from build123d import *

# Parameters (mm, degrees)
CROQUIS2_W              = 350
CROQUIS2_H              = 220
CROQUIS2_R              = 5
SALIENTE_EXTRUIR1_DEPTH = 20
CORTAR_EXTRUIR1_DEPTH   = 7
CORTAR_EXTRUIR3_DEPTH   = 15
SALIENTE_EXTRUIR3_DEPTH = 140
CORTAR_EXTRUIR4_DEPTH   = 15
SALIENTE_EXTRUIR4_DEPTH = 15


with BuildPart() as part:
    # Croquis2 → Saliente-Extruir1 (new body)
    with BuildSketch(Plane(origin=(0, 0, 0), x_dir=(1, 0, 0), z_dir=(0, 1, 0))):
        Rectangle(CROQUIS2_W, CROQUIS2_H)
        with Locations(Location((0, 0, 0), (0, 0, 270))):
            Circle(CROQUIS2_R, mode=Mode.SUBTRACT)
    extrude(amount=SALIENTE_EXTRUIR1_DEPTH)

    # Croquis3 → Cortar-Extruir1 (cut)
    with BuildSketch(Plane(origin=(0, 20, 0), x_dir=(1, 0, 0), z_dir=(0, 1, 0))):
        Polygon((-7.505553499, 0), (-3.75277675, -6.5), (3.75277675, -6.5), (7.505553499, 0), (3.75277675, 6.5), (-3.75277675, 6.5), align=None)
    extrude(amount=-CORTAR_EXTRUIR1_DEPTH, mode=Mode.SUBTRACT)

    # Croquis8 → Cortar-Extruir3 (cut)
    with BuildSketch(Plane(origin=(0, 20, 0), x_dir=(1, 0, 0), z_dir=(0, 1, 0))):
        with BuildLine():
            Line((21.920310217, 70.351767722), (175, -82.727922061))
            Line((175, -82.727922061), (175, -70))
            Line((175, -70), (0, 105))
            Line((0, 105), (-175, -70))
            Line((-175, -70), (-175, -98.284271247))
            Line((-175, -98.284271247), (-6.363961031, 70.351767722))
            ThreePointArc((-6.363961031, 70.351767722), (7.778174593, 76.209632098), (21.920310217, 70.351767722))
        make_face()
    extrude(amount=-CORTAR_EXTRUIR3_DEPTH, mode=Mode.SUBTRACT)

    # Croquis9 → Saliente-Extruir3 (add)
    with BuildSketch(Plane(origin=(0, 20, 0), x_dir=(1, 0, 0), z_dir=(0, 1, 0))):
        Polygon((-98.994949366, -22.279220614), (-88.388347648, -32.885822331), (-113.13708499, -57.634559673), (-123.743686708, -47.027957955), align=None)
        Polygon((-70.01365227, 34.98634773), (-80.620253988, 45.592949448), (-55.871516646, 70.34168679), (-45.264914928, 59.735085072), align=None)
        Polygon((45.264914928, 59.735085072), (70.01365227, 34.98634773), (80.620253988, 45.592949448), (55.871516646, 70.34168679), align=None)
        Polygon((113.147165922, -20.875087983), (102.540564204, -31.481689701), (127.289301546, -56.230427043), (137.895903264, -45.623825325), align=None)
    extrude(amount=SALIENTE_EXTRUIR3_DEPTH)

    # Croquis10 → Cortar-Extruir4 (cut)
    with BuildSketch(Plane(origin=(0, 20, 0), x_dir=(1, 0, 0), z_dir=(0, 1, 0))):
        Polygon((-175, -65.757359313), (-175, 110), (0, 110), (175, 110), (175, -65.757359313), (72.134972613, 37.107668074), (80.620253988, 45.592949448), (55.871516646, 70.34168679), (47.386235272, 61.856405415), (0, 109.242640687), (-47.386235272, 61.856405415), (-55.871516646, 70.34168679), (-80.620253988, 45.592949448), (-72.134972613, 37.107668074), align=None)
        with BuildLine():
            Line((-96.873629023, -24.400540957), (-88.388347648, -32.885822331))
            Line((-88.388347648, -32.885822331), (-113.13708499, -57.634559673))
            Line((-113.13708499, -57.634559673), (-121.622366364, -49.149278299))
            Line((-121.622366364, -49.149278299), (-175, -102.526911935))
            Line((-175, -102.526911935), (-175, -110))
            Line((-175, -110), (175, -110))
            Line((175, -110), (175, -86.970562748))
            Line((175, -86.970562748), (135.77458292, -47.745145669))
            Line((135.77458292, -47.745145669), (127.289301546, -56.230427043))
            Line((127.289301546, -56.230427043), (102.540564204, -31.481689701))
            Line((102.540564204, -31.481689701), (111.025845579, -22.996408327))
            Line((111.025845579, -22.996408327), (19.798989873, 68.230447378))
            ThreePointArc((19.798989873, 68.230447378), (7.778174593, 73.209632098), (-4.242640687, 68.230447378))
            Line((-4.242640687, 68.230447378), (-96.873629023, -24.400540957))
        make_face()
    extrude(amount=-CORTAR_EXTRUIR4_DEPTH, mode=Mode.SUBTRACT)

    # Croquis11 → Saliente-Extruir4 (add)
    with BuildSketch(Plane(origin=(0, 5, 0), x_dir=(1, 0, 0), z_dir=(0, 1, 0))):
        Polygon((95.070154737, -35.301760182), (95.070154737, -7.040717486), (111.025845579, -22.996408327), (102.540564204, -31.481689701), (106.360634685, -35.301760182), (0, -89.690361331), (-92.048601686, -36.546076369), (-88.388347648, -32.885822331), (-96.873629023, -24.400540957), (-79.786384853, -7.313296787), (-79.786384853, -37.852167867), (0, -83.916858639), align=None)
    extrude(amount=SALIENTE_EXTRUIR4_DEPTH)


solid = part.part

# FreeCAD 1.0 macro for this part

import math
import FreeCAD as App
import Part
import Sketcher

V = App.Vector
Q = App.Units.Quantity


def add_polygon(sketch, points):
    """Adds a closed chain of lines whose ends are joined by coincident constraints."""
    first, n = sketch.GeometryCount, len(points)
    for a, b in zip(points, points[1:] + points[:1]):
        sketch.addGeometry(Part.LineSegment(App.Vector(*a, 0), App.Vector(*b, 0)), False)
    for i in range(n):
        sketch.addConstraint(Sketcher.Constraint("Coincident", first + i, 2, first + (i + 1) % n, 1))

doc = App.newDocument("Part")
body = doc.addObject("PartDesign::Body", "Body")

# Sketch on XZ plane
sketch1 = body.newObject("Sketcher::SketchObject", "Sketch")
sketch1.AttachmentSupport = (doc.getObject("XZ_Plane"), [""])
sketch1.MapMode = "FlatFace"
add_polygon(sketch1, [(-175, -110), (-175, 110), (175, 110), (175, -110)])  # lines 0-3
sketch1.addGeometry(Part.Circle(V(0, 0, 0), V(0, 0, 1), 5), False)  # 4
sketch1.addConstraint([
    Sketcher.Constraint("Vertical", 0),
    Sketcher.Constraint("Horizontal", 1),
    Sketcher.Constraint("Vertical", 2),
    Sketcher.Constraint("Horizontal", 3),
    Sketcher.Constraint("Coincident", 4, 3, -1, 1),
    Sketcher.Constraint("Symmetric", 0, 2, 2, 2, -1, 1),
    Sketcher.Constraint("Diameter", 4, 10.0),
    Sketcher.Constraint("DistanceX", 1, 1, 1, 2, 350.0),
    Sketcher.Constraint("DistanceY", 0, 1, 0, 2, 220.0),
])
pad1 = body.newObject("PartDesign::Pad", "Pad")
pad1.Profile = sketch1
pad1.Length = 20
pad1.Reversed = True

# Sketch on XZ plane
sketch2 = body.newObject("Sketcher::SketchObject", "Sketch001")
sketch2.AttachmentSupport = (doc.getObject("XZ_Plane"), [""])
sketch2.MapMode = "FlatFace"
sketch2.AttachmentOffset = App.Placement(V(0, 0, -20), App.Rotation())
add_polygon(sketch2, [(-7.505553, 0), (-3.752777, 6.5), (3.752777, 6.5), (7.505553, 0), (3.752777, -6.5), (-3.752777, -6.5)])  # lines 0-5
sketch2.addConstraint([
    Sketcher.Constraint("Horizontal", 1),
    Sketcher.Constraint("Horizontal", 4),
    Sketcher.Constraint("Symmetric", 0, 2, 3, 2, -1, 1),
    Sketcher.Constraint("Symmetric", 2, 2, 5, 2, -1, 1),
    Sketcher.Constraint("PointOnObject", 2, 2, -1),
    Sketcher.Constraint("Parallel", 2, 5),
    Sketcher.Constraint("Vertical", 1, 2, 3, 2),
    Sketcher.Constraint("Angle", 0, Q("60 deg")),
    Sketcher.Constraint("DistanceY", 3, 2, 1, 2, 13.0),
    Sketcher.Constraint("DistanceX", 1, 1, 1, 2, 7.505554),
])
pocket1 = body.newObject("PartDesign::Pocket", "Pocket")
pocket1.Profile = sketch2
pocket1.Length = 7
pocket1.Reversed = True

# Sketch on XZ plane
sketch3 = body.newObject("Sketcher::SketchObject", "Sketch002")
sketch3.AttachmentSupport = (doc.getObject("XZ_Plane"), [""])
sketch3.MapMode = "FlatFace"
sketch3.AttachmentOffset = App.Placement(V(0, 0, -20), App.Rotation())
sketch3.addGeometry([
    Part.LineSegment(V(21.92031, -70.351768, 0), V(175, 82.727922, 0)),  # 0
    Part.LineSegment(V(175, 82.727922, 0), V(175, 70, 0)),  # 1
    Part.LineSegment(V(175, 70, 0), V(0, -105, 0)),  # 2
    Part.LineSegment(V(0, -105, 0), V(-175, 70, 0)),  # 3
    Part.LineSegment(V(-175, 70, 0), V(-175, 98.284271, 0)),  # 4
    Part.LineSegment(V(-175, 98.284271, 0), V(-6.363961, -70.351768, 0)),  # 5
    Part.ArcOfCircle(Part.Circle(V(7.778175, -56.209632, 0), V(0, 0, 1), 20), math.radians(-135), math.radians(-45)),  # 6
], False)
sketch3.addConstraint([
    Sketcher.Constraint("Coincident", 0, 2, 1, 1),
    Sketcher.Constraint("Coincident", 1, 2, 2, 1),
    Sketcher.Constraint("Coincident", 2, 2, 3, 1),
    Sketcher.Constraint("Coincident", 3, 2, 4, 1),
    Sketcher.Constraint("Coincident", 4, 2, 5, 1),
    Sketcher.Constraint("Tangent", 5, 2, 6, 1),
    Sketcher.Constraint("Tangent", 6, 2, 0, 1),
    Sketcher.Constraint("Vertical", 1),
    Sketcher.Constraint("Vertical", 4),
    Sketcher.Constraint("Symmetric", 1, 2, 3, 2, -2),
    Sketcher.Constraint("PointOnObject", 2, 2, -2),
    Sketcher.Constraint("Parallel", 0, 2),
    Sketcher.Constraint("Perpendicular", 2, 3),
    Sketcher.Constraint("Parallel", 3, 5),
    Sketcher.Constraint("Radius", 6, 20.0),
    Sketcher.Constraint("DistanceX", -1, 1, 0, 2, 175.0),
    Sketcher.Constraint("DistanceY", -1, 1, 1, 2, 70.0),
    Sketcher.Constraint("DistanceY", 4, 1, 4, 2, 28.284271),
    Sketcher.Constraint("DistanceY", 1, 2, 1, 1, 12.727922),
])
pocket2 = body.newObject("PartDesign::Pocket", "Pocket001")
pocket2.Profile = sketch3
pocket2.Length = 15
pocket2.Reversed = True

# Sketch on XZ plane
sketch4 = body.newObject("Sketcher::SketchObject", "Sketch003")
sketch4.AttachmentSupport = (doc.getObject("XZ_Plane"), [""])
sketch4.MapMode = "FlatFace"
sketch4.AttachmentOffset = App.Placement(V(0, 0, -20), App.Rotation())
add_polygon(sketch4, [(-88.388348, 32.885822), (-98.994949, 22.279221), (-123.743687, 47.027958), (-113.137085, 57.63456)])  # lines 0-3
add_polygon(sketch4, [(-80.620254, -45.592949), (-70.013652, -34.986348), (-45.264915, -59.735085), (-55.871517, -70.341687)])  # lines 4-7
add_polygon(sketch4, [(45.264915, -59.735085), (70.013652, -34.986348), (80.620254, -45.592949), (55.871517, -70.341687)])  # lines 8-11
add_polygon(sketch4, [(113.147166, 20.875088), (102.540564, 31.48169), (127.289302, 56.230427), (137.895903, 45.623825)])  # lines 12-15
sketch4.addConstraint([
    Sketcher.Constraint("Symmetric", 4, 2, 8, 2, -2),
    Sketcher.Constraint("Symmetric", 7, 2, 9, 2, -2),
    Sketcher.Constraint("Symmetric", 6, 2, 10, 2, -2),
    Sketcher.Constraint("Symmetric", 5, 2, 11, 2, -2),
    Sketcher.Constraint("Perpendicular", 0, 1),
    Sketcher.Constraint("Perpendicular", 1, 2),
    Sketcher.Constraint("Perpendicular", 2, 3),
    Sketcher.Constraint("Perpendicular", 3, 4),
    Sketcher.Constraint("Perpendicular", 4, 5),
    Sketcher.Constraint("Perpendicular", 5, 6),
    Sketcher.Constraint("Perpendicular", 6, 7),
    Sketcher.Constraint("Perpendicular", 7, 8),
    Sketcher.Constraint("Parallel", 11, 12),
    Sketcher.Constraint("Perpendicular", 12, 13),
    Sketcher.Constraint("Perpendicular", 13, 14),
    Sketcher.Constraint("Perpendicular", 14, 15),
    Sketcher.Constraint("Equal", 2, 4),
    Sketcher.Constraint("Equal", 3, 5),
    Sketcher.Constraint("Equal", 11, 12),
    Sketcher.Constraint("Equal", 10, 13),
    Sketcher.Constraint("Distance", 0, 15.0),
    Sketcher.Constraint("Distance", 1, 35.0),
    Sketcher.Constraint("DistanceX", 3, 2, 8, 2, 158.402),
    Sketcher.Constraint("DistanceX", -1, 1, 13, 2, 127.289302),
    Sketcher.Constraint("DistanceX", 0, 2, -1, 1, 98.994949),
    Sketcher.Constraint("DistanceY", -1, 1, 0, 2, 22.279221),
    Sketcher.Constraint("DistanceY", 7, 2, -1, 1, 45.592949),
    Sketcher.Constraint("DistanceY", -1, 1, 12, 2, 31.48169),
])
pad2 = body.newObject("PartDesign::Pad", "Pad001")
pad2.Profile = sketch4
pad2.Length = 140
pad2.Reversed = True

# Sketch on XZ plane
sketch5 = body.newObject("Sketcher::SketchObject", "Sketch004")
sketch5.AttachmentSupport = (doc.getObject("XZ_Plane"), [""])
sketch5.MapMode = "FlatFace"
sketch5.AttachmentOffset = App.Placement(V(0, 0, -20), App.Rotation())
add_polygon(sketch5, [(-175, -110), (-175, 65.757359), (-72.134973, -37.107668), (-80.620254, -45.592949), (-55.871517, -70.341687), (-47.386235, -61.856405), (0, -109.242641), (47.386235, -61.856405), (55.871517, -70.341687), (80.620254, -45.592949), (72.134973, -37.107668), (175, 65.757359), (175, -110)])  # lines 0-12
sketch5.addGeometry(Part.LineSegment(V(-96.873629, 24.400541, 0), V(-88.388348, 32.885822, 0)), False)  # 13
sketch5.addGeometry(Part.LineSegment(V(-88.388348, 32.885822, 0), V(-113.137085, 57.63456, 0)), False)  # 14
sketch5.addGeometry(Part.LineSegment(V(-113.137085, 57.63456, 0), V(-121.622366, 49.149278, 0)), False)  # 15
sketch5.addGeometry(Part.LineSegment(V(-121.622366, 49.149278, 0), V(-175, 102.526912, 0)), False)  # 16
sketch5.addGeometry(Part.LineSegment(V(-175, 102.526912, 0), V(-175, 110, 0)), False)  # 17
sketch5.addGeometry(Part.LineSegment(V(-175, 110, 0), V(175, 110, 0)), False)  # 18
sketch5.addGeometry(Part.LineSegment(V(175, 110, 0), V(175, 86.970563, 0)), False)  # 19
sketch5.addGeometry(Part.LineSegment(V(175, 86.970563, 0), V(135.774583, 47.745146, 0)), False)  # 20
sketch5.addGeometry(Part.LineSegment(V(135.774583, 47.745146, 0), V(127.289302, 56.230427, 0)), False)  # 21
sketch5.addGeometry(Part.LineSegment(V(127.289302, 56.230427, 0), V(102.540564, 31.48169, 0)), False)  # 22
sketch5.addGeometry(Part.LineSegment(V(102.540564, 31.48169, 0), V(111.025846, 22.996408, 0)), False)  # 23
sketch5.addGeometry(Part.LineSegment(V(111.025846, 22.996408, 0), V(19.79899, -68.230447, 0)), False)  # 24
sketch5.addGeometry(Part.ArcOfCircle(Part.Circle(V(7.778175, -56.209632, 0), V(0, 0, 1), 17), math.radians(-135), math.radians(-45)), False)  # 25
sketch5.addGeometry(Part.LineSegment(V(-4.242641, -68.230447, 0), V(-96.873629, 24.400541, 0)), False)  # 26
sketch5.addConstraint([
    Sketcher.Constraint("Coincident", 13, 2, 14, 1),
    Sketcher.Constraint("Coincident", 14, 2, 15, 1),
    Sketcher.Constraint("Coincident", 15, 2, 16, 1),
    Sketcher.Constraint("Coincident", 16, 2, 17, 1),
    Sketcher.Constraint("Coincident", 17, 2, 18, 1),
    Sketcher.Constraint("Coincident", 18, 2, 19, 1),
    Sketcher.Constraint("Coincident", 19, 2, 20, 1),
    Sketcher.Constraint("Coincident", 20, 2, 21, 1),
    Sketcher.Constraint("Coincident", 21, 2, 22, 1),
    Sketcher.Constraint("Coincident", 22, 2, 23, 1),
    Sketcher.Constraint("Coincident", 23, 2, 24, 1),
    Sketcher.Constraint("Tangent", 24, 2, 25, 2),
    Sketcher.Constraint("Tangent", 25, 1, 26, 1),
    Sketcher.Constraint("Coincident", 26, 2, 13, 1),
    Sketcher.Constraint("Vertical", 0),
    Sketcher.Constraint("Vertical", 11),
    Sketcher.Constraint("Horizontal", 12),
    Sketcher.Constraint("Vertical", 17),
    Sketcher.Constraint("Horizontal", 18),
    Sketcher.Constraint("Vertical", 19),
    Sketcher.Constraint("Symmetric", 11, 2, 17, 2, -1, 1),
    Sketcher.Constraint("Symmetric", 4, 2, 6, 2, -2),
    Sketcher.Constraint("Symmetric", 3, 2, 7, 2, -2),
    Sketcher.Constraint("Symmetric", 2, 2, 8, 2, -2),
    Sketcher.Constraint("Symmetric", 1, 2, 9, 2, -2),
    Sketcher.Constraint("Symmetric", 0, 2, 10, 2, -2),
    Sketcher.Constraint("PointOnObject", 5, 2, -2),
    Sketcher.Constraint("Perpendicular", 1, 2),
    Sketcher.Constraint("Perpendicular", 2, 3),
    Sketcher.Constraint("Perpendicular", 3, 4),
    Sketcher.Constraint("Perpendicular", 4, 5),
    Sketcher.Constraint("Perpendicular", 5, 6),
    Sketcher.Constraint("Parallel", 10, 13),
    Sketcher.Constraint("Perpendicular", 13, 14),
    Sketcher.Constraint("Perpendicular", 14, 15),
    Sketcher.Constraint("Perpendicular", 15, 16),
    Sketcher.Constraint("Perpendicular", 16, 20),
    Sketcher.Constraint("Perpendicular", 20, 21),
    Sketcher.Constraint("Perpendicular", 21, 22),
    Sketcher.Constraint("Perpendicular", 22, 23),
    Sketcher.Constraint("Perpendicular", 23, 24),
    Sketcher.Constraint("Perpendicular", 24, 26),
    Sketcher.Constraint("Vertical", 11, 2, 18, 2),
    Sketcher.Constraint("Equal", 2, 4),
    Sketcher.Constraint("Equal", 9, 13),
    Sketcher.Constraint("Equal", 8, 14),
    Sketcher.Constraint("Equal", 13, 15),
    Sketcher.Constraint("Equal", 15, 21),
    Sketcher.Constraint("Equal", 14, 22),
    Sketcher.Constraint("Equal", 21, 23),
    Sketcher.Constraint("Radius", 25, 17.0),
    Sketcher.Constraint("DistanceX", 12, 2, 12, 1, 350.0),
    Sketcher.Constraint("Distance", 2, 12.0),
    Sketcher.Constraint("Distance", 3, 35.0),
    Sketcher.Constraint("Distance", 26, 131.0),
    Sketcher.Constraint("DistanceY", 11, 2, -1, 1, 110.0),
    Sketcher.Constraint("DistanceY", 0, 1, 0, 2, 175.757359),
    Sketcher.Constraint("DistanceY", 17, 1, 17, 2, 7.473088),
    Sketcher.Constraint("DistanceX", -1, 1, 21, 2, 127.289302),
    Sketcher.Constraint("DistanceX", 25, 3, 9, 2, 64.356798),
    Sketcher.Constraint("DistanceY", 14, 2, 0, 2, 8.1228),
])
pocket3 = body.newObject("PartDesign::Pocket", "Pocket002")
pocket3.Profile = sketch5
pocket3.Length = 15
pocket3.Reversed = True

# Sketch on XZ plane
sketch6 = body.newObject("Sketcher::SketchObject", "Sketch005")
sketch6.AttachmentSupport = (doc.getObject("XZ_Plane"), [""])
sketch6.MapMode = "FlatFace"
sketch6.AttachmentOffset = App.Placement(V(0, 0, -5), App.Rotation())
add_polygon(sketch6, [(95.070155, 7.040717), (95.070155, 35.30176), (0, 83.916859), (-79.786385, 37.852168), (-79.786385, 7.313297), (-96.873629, 24.400541), (-88.388348, 32.885822), (-92.048602, 36.546076), (0, 89.690361), (106.360635, 35.30176), (102.540564, 31.48169), (111.025846, 22.996408)])  # lines 0-11
sketch6.addConstraint([
    Sketcher.Constraint("Vertical", 0),
    Sketcher.Constraint("Vertical", 3),
    Sketcher.Constraint("PointOnObject", 1, 2, -2),
    Sketcher.Constraint("PointOnObject", 7, 2, -2),
    Sketcher.Constraint("Perpendicular", 4, 5),
    Sketcher.Constraint("Perpendicular", 5, 6),
    Sketcher.Constraint("Parallel", 2, 7),
    Sketcher.Constraint("Parallel", 1, 8),
    Sketcher.Constraint("Perpendicular", 6, 9),
    Sketcher.Constraint("Perpendicular", 9, 10),
    Sketcher.Constraint("Perpendicular", 10, 11),
    Sketcher.Constraint("Horizontal", 0, 2, 8, 2),
    Sketcher.Constraint("Equal", 5, 10),
    Sketcher.Constraint("Angle", 2, Q("-150 deg")),
    Sketcher.Constraint("Angle", 4, Q("135 deg")),
    Sketcher.Constraint("Distance", 5, 12.0),
    Sketcher.Constraint("DistanceY", 3, 2, 3, 1, 30.538871),
    Sketcher.Constraint("DistanceX", 6, 2, -1, 1, 92.048602),
    Sketcher.Constraint("DistanceY", 0, 2, 1, 2, 48.615098),
    Sketcher.Constraint("DistanceY", 0, 2, 7, 2, 54.388601),
    Sketcher.Constraint("Distance", 6, 5.176381),
    Sketcher.Constraint("DistanceY", 0, 1, 0, 2, 28.261043),
    Sketcher.Constraint("DistanceY", -1, 1, 0, 2, 35.30176),
    Sketcher.Constraint("DistanceY", -1, 1, 9, 2, 31.48169),
])
pad3 = body.newObject("PartDesign::Pad", "Pad002")
pad3.Profile = sketch6
pad3.Length = 15
pad3.Reversed = True

doc.recompute()
